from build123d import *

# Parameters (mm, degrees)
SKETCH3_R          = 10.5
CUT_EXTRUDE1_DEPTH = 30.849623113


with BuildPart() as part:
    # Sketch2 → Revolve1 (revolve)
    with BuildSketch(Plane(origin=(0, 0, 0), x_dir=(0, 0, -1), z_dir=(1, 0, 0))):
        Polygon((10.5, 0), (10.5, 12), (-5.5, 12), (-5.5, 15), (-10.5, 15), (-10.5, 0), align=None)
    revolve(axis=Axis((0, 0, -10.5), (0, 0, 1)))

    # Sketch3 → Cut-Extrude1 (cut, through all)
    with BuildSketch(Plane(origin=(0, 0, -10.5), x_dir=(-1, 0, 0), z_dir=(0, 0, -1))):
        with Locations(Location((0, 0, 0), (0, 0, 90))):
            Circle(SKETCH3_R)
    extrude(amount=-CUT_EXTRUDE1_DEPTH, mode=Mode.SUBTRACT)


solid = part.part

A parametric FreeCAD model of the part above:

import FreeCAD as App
import Part
import Sketcher
from FreeCAD import Vector
Q = App.Units.Quantity


def add_polygon(sketch, points):
    """Adds a closed chain of lines whose ends are joined by coincident constraints."""
    first, n = sketch.GeometryCount, len(points)
    for a, b in zip(points, points[1:] + points[:1]):
        sketch.addGeometry(Part.LineSegment(App.Vector(*a, 0), App.Vector(*b, 0)), False)
    for i in range(n):
        sketch.addConstraint(Sketcher.Constraint("Coincident", first + i, 2, first + (i + 1) % n, 1))

doc = App.newDocument("Part")
body = doc.addObject("PartDesign::Body", "Body")

sketch1 = body.newObject("Sketcher::SketchObject", "Sketch")
sketch1.AttachmentSupport = (doc.getObject("YZ_Plane"), [""])
sketch1.MapMode = "FlatFace"
add_polygon(sketch1, [(0, -10.5), (12, -10.5), (12, 5.5), (15, 5.5), (15, 10.5), (0, 10.5)])
sketch1.addConstraint([
    Sketcher.Constraint("Horizontal", 0),
    Sketcher.Constraint("Vertical", 1),
    Sketcher.Constraint("Horizontal", 2),
    Sketcher.Constraint("Vertical", 3),
    Sketcher.Constraint("Horizontal", 4),
    Sketcher.Constraint("Vertical", 5),
    Sketcher.Constraint("Symmetric", 4, 2, 5, 2, -1, 1),
    Sketcher.Constraint("DistanceX", 0, 1, 0, 2, Q("12 mm")),
    Sketcher.Constraint("DistanceX", 2, 1, 2, 2, Q("3 mm")),
    Sketcher.Constraint("DistanceY", 1, 1, 1, 2, Q("16 mm")),
    Sketcher.Constraint("DistanceY", 3, 1, 3, 2, Q("5 mm")),
])
revolution = body.newObject("PartDesign::Revolution", "Revolution")
revolution.Profile = sketch1
revolution.ReferenceAxis = (sketch1, ["V_Axis"])
revolution.Angle = 360

sketch2 = body.newObject("Sketcher::SketchObject", "Sketch001")
sketch2.AttachmentSupport = (doc.getObject("XY_Plane"), [""])
sketch2.MapMode = "FlatFace"
sketch2.AttachmentOffset = App.Placement(Vector(0, 0, -10.5), App.Rotation())
sketch2.addGeometry(Part.Circle(Vector(0, 0, 0), Vector(0, 0, 1), 10), False)
sketch2.addConstraint([
    Sketcher.Constraint("Coincident", 0, 3, -1, 1),
    Sketcher.Constraint("Diameter", 0, Q("21 mm")),
])
pocket1 = body.newObject("PartDesign::Pocket", "Pocket")
pocket1.Profile = sketch2
pocket1.Type = "ThroughAll"
pocket1.Reversed = True

doc.recompute()
